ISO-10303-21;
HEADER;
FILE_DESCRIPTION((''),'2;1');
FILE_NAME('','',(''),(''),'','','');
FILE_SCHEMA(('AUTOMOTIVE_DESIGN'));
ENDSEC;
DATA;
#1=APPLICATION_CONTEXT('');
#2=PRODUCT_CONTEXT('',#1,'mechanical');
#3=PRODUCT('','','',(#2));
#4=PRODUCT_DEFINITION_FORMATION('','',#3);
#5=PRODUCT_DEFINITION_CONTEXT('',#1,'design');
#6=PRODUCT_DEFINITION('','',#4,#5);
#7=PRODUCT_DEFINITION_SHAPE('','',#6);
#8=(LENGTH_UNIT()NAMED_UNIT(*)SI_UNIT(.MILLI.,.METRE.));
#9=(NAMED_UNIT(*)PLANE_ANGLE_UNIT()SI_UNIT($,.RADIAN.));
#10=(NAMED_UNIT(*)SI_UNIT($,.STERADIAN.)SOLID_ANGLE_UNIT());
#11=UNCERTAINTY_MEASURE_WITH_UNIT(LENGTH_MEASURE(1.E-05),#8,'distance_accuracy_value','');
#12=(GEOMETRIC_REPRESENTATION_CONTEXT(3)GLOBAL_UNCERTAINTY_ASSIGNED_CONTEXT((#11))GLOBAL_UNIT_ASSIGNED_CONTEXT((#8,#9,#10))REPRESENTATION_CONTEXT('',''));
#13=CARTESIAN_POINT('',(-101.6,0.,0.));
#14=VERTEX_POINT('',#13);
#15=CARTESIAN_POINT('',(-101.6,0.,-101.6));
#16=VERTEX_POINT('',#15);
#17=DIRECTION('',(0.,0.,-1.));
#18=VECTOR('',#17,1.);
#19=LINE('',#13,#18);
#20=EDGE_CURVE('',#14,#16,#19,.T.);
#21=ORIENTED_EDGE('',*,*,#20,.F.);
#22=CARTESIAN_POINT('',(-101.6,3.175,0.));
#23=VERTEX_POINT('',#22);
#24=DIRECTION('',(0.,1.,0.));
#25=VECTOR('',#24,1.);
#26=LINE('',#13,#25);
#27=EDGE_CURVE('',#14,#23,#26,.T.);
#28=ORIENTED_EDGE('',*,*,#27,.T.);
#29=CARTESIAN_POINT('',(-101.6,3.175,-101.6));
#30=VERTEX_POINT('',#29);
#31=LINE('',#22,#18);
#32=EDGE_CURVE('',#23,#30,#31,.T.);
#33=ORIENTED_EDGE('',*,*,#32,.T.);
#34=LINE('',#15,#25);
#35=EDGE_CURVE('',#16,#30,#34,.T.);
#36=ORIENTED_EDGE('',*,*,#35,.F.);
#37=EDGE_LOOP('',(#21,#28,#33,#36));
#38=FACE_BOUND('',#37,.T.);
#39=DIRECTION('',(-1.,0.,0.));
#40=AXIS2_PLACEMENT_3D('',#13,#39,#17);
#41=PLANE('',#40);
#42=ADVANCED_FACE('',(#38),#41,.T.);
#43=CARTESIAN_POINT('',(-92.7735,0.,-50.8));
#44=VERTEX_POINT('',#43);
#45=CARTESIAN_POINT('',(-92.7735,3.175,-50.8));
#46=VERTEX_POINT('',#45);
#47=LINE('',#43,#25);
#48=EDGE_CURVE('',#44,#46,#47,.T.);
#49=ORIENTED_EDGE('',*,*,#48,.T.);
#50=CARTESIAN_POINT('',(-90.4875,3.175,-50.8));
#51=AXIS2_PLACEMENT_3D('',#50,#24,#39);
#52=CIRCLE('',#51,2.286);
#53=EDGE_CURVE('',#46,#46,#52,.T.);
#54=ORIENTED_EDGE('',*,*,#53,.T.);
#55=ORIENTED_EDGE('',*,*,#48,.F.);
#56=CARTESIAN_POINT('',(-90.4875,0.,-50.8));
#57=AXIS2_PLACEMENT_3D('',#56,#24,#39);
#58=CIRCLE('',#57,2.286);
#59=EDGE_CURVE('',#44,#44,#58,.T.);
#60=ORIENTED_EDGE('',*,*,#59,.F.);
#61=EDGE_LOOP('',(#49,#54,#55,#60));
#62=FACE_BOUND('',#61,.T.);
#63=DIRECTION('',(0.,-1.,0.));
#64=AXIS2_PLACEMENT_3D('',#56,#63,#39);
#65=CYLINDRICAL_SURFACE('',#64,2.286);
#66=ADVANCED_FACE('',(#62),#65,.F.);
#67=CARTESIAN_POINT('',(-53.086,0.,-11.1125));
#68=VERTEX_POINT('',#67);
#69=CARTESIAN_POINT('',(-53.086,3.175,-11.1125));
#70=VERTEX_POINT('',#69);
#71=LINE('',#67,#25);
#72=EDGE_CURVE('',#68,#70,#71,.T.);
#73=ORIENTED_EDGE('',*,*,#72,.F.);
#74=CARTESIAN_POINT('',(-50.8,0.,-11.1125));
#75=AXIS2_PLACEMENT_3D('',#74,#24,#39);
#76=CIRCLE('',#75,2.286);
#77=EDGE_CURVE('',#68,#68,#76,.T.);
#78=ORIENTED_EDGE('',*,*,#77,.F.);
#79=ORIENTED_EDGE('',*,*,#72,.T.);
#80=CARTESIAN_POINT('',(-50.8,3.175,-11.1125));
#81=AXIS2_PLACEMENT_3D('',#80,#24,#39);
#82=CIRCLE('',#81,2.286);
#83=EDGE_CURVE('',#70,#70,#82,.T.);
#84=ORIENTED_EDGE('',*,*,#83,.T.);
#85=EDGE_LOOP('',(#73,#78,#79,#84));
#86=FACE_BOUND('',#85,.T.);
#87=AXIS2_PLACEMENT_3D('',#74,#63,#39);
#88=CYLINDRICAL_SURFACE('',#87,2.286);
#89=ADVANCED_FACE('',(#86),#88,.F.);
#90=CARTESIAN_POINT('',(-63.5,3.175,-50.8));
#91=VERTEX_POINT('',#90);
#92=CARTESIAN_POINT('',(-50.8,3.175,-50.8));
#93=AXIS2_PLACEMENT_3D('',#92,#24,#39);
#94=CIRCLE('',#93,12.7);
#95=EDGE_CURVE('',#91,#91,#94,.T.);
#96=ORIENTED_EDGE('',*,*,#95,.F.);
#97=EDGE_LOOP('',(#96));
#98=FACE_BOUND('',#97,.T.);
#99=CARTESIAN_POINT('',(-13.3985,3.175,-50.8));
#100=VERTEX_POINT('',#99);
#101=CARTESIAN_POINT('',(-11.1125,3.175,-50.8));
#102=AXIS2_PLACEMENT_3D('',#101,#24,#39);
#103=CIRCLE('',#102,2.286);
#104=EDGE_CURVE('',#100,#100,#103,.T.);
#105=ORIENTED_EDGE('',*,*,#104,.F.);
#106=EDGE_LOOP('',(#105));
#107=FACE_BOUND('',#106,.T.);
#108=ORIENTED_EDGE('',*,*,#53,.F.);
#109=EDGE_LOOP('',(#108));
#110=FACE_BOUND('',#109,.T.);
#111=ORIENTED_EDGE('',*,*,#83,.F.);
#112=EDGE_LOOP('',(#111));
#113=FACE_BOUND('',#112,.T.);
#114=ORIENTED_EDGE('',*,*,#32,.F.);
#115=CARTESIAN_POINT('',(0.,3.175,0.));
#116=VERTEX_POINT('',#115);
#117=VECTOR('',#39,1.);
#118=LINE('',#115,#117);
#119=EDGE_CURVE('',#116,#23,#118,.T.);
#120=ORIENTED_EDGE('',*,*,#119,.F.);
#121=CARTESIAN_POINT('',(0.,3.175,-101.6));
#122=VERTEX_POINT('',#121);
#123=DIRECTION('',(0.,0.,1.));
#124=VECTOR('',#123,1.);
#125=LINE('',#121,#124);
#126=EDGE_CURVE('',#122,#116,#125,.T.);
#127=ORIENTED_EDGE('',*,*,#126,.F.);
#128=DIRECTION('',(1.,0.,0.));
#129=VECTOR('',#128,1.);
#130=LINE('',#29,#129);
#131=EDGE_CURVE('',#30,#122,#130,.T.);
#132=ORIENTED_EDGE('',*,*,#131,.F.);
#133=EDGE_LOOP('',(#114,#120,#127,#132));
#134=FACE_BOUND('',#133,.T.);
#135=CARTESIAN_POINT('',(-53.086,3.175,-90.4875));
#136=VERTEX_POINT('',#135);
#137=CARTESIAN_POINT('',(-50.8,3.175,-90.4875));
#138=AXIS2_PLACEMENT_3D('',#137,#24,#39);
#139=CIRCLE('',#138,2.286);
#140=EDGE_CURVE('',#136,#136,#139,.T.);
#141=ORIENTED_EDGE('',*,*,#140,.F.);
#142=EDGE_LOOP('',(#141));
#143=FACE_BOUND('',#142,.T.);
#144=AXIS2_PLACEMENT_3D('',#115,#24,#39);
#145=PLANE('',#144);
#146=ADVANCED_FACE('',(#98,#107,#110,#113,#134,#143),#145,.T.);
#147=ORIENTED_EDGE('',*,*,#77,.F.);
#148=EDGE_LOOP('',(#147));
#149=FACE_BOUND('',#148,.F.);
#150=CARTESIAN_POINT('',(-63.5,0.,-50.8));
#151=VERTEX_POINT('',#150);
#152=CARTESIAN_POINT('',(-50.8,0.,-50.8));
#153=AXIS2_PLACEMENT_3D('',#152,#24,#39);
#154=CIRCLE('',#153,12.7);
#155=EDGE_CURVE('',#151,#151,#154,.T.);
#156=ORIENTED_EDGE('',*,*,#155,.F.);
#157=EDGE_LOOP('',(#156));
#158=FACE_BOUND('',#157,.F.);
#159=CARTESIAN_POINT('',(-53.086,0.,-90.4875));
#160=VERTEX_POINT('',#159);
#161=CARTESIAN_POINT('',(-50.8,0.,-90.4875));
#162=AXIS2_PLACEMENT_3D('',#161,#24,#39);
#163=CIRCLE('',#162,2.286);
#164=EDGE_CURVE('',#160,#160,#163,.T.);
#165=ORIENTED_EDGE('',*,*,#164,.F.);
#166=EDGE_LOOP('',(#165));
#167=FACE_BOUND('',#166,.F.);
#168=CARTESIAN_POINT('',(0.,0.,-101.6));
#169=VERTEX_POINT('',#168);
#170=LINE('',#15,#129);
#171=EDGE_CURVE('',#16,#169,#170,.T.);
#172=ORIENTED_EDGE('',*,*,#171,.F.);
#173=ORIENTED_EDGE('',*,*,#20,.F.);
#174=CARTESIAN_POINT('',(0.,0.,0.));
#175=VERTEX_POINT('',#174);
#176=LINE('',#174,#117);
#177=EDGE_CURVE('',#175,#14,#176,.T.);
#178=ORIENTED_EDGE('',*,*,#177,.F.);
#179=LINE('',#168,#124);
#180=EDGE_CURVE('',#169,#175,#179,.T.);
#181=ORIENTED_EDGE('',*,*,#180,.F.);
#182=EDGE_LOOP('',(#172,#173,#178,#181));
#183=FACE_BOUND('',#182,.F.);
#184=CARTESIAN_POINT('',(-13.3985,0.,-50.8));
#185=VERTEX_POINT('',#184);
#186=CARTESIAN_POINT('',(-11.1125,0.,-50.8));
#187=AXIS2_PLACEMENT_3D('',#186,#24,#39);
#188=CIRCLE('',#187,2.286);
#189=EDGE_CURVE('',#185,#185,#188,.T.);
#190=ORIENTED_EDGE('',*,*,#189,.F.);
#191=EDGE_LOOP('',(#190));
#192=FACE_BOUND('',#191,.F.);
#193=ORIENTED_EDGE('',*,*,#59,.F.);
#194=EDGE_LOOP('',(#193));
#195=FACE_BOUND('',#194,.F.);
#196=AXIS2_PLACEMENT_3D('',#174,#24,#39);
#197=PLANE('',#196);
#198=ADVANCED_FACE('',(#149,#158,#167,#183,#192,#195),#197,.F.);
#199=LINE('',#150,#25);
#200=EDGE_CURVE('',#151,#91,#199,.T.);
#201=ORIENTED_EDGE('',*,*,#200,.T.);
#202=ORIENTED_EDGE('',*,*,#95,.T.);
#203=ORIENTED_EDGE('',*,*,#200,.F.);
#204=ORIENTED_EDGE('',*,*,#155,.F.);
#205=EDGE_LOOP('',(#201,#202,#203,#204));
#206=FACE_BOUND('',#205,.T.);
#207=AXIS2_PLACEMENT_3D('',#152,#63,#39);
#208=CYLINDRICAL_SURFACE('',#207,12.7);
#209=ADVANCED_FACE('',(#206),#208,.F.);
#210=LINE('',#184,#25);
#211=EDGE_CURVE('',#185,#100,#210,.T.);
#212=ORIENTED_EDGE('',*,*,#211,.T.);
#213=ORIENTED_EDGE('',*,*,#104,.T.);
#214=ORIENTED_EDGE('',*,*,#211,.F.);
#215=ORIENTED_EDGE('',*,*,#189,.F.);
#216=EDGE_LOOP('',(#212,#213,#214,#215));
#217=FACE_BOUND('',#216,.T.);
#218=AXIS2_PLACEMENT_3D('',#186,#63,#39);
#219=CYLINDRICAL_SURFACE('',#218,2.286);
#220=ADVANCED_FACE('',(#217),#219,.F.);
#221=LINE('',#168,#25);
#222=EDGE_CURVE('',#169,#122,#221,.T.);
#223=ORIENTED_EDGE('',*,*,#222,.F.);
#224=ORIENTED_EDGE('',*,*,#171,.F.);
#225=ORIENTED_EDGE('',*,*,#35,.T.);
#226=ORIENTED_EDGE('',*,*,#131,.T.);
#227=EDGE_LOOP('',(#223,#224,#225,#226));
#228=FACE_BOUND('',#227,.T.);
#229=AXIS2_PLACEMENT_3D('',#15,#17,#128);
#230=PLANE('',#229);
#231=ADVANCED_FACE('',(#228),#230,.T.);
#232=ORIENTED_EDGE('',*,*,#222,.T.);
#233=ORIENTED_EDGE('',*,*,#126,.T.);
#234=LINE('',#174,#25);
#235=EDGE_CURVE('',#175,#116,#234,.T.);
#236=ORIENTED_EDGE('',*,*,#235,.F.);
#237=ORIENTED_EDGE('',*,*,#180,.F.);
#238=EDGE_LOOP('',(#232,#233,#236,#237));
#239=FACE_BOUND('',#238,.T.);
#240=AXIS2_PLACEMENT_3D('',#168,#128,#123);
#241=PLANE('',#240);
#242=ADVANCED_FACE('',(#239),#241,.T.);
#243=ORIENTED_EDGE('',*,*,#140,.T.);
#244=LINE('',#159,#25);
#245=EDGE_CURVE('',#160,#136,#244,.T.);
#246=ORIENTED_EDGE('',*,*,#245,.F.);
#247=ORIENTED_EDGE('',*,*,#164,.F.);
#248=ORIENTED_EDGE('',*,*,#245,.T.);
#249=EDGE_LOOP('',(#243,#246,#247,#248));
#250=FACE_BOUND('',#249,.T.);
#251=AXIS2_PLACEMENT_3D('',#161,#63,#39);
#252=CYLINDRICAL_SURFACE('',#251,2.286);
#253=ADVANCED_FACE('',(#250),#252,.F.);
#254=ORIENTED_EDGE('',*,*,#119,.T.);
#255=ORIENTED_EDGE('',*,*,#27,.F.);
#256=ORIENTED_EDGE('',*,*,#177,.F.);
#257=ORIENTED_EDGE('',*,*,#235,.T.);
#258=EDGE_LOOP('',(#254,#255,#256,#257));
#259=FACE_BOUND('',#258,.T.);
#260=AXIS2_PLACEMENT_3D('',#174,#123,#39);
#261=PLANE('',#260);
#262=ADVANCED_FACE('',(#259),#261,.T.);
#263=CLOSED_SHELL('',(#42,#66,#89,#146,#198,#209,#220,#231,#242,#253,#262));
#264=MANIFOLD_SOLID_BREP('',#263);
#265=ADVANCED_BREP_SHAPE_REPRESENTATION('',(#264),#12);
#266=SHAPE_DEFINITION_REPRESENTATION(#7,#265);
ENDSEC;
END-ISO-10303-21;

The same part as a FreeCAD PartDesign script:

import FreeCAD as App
import Part
import Sketcher

V = App.Vector
Q = App.Units.Quantity

doc = App.newDocument("Part")
params = doc.addObject("Spreadsheet::Sheet", "Params")
for row, (alias, value) in enumerate([
    ("sketch1_diameter", "1 in"),
    ("sketch1_diameter2", "0.18 in"),
    ("sketch1_width", "4 in"),
    ("pad1_length", "0.125 in"),
], start=1):
    params.set(f"A{row}", alias)
    params.set(f"B{row}", "=" + value)
    params.setAlias(f"B{row}", alias)

body = doc.addObject("PartDesign::Body", "Body")

# Sketch on XZ plane
sketch1 = body.newObject("Sketcher::SketchObject", "Sketch")
sketch1.AttachmentSupport = (doc.getObject("XZ_Plane"), [""])
sketch1.MapMode = "FlatFace"
sketch1.addGeometry(Part.LineSegment(V(-101.6, 0, 0), V(0, 0, 0)), False)
sketch1.addGeometry(Part.LineSegment(V(0, 0, 0), V(0, -101.6, 0)), False)
sketch1.addGeometry(Part.LineSegment(V(0, -101.6, 0), V(-101.6, -101.6, 0)), False)
sketch1.addGeometry(Part.LineSegment(V(-101.6, -101.6, 0), V(-101.6, 0, 0)), False)
sketch1.addGeometry(Part.Circle(V(-50.8, -90.4875, 0), V(0, 0, 1), 2.286), False)
sketch1.addGeometry(Part.Circle(V(-11.1125, -50.8, 0), V(0, 0, 1), 2.286), False)
sketch1.addGeometry(Part.Circle(V(-50.8, -50.8, 0), V(0, 0, 1), 12.7), False)
sketch1.addGeometry(Part.Circle(V(-90.4875, -50.8, 0), V(0, 0, 1), 2.286), False)
sketch1.addGeometry(Part.Circle(V(-50.8, -11.1125, 0), V(0, 0, 1), 2.286), False)
sketch1.addConstraint(Sketcher.Constraint("Coincident", 0, 2, 1, 1))
sketch1.addConstraint(Sketcher.Constraint("Coincident", 1, 2, 2, 1))
sketch1.addConstraint(Sketcher.Constraint("Coincident", 2, 2, 3, 1))
sketch1.addConstraint(Sketcher.Constraint("Coincident", 3, 2, 0, 1))
sketch1.addConstraint(Sketcher.Constraint("Horizontal", 0))
sketch1.addConstraint(Sketcher.Constraint("Vertical", 1))
sketch1.addConstraint(Sketcher.Constraint("Horizontal", 2))
sketch1.addConstraint(Sketcher.Constraint("Vertical", 3))
sketch1.addConstraint(Sketcher.Constraint("Coincident", 0, 2, -1, 1))
sketch1.addConstraint(Sketcher.Constraint("Equal", 4, 5))
sketch1.addConstraint(Sketcher.Constraint("Equal", 5, 7))
sketch1.addConstraint(Sketcher.Constraint("Equal", 7, 8))
sketch1.addConstraint(Sketcher.Constraint("Horizontal", 5, 3, 6, 3))
sketch1.addConstraint(Sketcher.Constraint("Horizontal", 6, 3, 7, 3))
sketch1.addConstraint(Sketcher.Constraint("Vertical", 4, 3, 6, 3))
sketch1.addConstraint(Sketcher.Constraint("Vertical", 6, 3, 8, 3))
sketch1.addConstraint(Sketcher.Constraint("Equal", 2, 1))
sketch1.addConstraint(Sketcher.Constraint("Diameter", 6, Q("1 in")))
sketch1.addConstraint(Sketcher.Constraint("Diameter", 4, Q("0.18 in")))
sketch1.addConstraint(Sketcher.Constraint("DistanceX", 0, 1, 0, 2, Q("4 in")))
sketch1.addConstraint(Sketcher.Constraint("DistanceX", 4, 3, -1, 1, Q("2 in")))
sketch1.addConstraint(Sketcher.Constraint("DistanceX", 5, 3, -1, 1, Q("0.4375 in")))
sketch1.addConstraint(Sketcher.Constraint("DistanceY", 5, 3, -1, 1, Q("2 in")))
sketch1.addConstraint(Sketcher.Constraint("DistanceY", 8, 3, -1, 1, Q("0.4375 in")))
sketch1.addConstraint(Sketcher.Constraint("DistanceY", 1, 2, 4, 3, Q("0.4375 in")))
sketch1.addConstraint(Sketcher.Constraint("DistanceX", 2, 2, 7, 3, Q("0.4375 in")))
sketch1.setExpression("Constraints[17]", "Params.sketch1_diameter")
sketch1.setExpression("Constraints[18]", "Params.sketch1_diameter2")
sketch1.setExpression("Constraints[19]", "Params.sketch1_width")
pad1 = body.newObject("PartDesign::Pad", "Pad")
pad1.Profile = sketch1
pad1.setExpression("Length", "Params.pad1_length")
pad1.Reversed = True

doc.recompute()
